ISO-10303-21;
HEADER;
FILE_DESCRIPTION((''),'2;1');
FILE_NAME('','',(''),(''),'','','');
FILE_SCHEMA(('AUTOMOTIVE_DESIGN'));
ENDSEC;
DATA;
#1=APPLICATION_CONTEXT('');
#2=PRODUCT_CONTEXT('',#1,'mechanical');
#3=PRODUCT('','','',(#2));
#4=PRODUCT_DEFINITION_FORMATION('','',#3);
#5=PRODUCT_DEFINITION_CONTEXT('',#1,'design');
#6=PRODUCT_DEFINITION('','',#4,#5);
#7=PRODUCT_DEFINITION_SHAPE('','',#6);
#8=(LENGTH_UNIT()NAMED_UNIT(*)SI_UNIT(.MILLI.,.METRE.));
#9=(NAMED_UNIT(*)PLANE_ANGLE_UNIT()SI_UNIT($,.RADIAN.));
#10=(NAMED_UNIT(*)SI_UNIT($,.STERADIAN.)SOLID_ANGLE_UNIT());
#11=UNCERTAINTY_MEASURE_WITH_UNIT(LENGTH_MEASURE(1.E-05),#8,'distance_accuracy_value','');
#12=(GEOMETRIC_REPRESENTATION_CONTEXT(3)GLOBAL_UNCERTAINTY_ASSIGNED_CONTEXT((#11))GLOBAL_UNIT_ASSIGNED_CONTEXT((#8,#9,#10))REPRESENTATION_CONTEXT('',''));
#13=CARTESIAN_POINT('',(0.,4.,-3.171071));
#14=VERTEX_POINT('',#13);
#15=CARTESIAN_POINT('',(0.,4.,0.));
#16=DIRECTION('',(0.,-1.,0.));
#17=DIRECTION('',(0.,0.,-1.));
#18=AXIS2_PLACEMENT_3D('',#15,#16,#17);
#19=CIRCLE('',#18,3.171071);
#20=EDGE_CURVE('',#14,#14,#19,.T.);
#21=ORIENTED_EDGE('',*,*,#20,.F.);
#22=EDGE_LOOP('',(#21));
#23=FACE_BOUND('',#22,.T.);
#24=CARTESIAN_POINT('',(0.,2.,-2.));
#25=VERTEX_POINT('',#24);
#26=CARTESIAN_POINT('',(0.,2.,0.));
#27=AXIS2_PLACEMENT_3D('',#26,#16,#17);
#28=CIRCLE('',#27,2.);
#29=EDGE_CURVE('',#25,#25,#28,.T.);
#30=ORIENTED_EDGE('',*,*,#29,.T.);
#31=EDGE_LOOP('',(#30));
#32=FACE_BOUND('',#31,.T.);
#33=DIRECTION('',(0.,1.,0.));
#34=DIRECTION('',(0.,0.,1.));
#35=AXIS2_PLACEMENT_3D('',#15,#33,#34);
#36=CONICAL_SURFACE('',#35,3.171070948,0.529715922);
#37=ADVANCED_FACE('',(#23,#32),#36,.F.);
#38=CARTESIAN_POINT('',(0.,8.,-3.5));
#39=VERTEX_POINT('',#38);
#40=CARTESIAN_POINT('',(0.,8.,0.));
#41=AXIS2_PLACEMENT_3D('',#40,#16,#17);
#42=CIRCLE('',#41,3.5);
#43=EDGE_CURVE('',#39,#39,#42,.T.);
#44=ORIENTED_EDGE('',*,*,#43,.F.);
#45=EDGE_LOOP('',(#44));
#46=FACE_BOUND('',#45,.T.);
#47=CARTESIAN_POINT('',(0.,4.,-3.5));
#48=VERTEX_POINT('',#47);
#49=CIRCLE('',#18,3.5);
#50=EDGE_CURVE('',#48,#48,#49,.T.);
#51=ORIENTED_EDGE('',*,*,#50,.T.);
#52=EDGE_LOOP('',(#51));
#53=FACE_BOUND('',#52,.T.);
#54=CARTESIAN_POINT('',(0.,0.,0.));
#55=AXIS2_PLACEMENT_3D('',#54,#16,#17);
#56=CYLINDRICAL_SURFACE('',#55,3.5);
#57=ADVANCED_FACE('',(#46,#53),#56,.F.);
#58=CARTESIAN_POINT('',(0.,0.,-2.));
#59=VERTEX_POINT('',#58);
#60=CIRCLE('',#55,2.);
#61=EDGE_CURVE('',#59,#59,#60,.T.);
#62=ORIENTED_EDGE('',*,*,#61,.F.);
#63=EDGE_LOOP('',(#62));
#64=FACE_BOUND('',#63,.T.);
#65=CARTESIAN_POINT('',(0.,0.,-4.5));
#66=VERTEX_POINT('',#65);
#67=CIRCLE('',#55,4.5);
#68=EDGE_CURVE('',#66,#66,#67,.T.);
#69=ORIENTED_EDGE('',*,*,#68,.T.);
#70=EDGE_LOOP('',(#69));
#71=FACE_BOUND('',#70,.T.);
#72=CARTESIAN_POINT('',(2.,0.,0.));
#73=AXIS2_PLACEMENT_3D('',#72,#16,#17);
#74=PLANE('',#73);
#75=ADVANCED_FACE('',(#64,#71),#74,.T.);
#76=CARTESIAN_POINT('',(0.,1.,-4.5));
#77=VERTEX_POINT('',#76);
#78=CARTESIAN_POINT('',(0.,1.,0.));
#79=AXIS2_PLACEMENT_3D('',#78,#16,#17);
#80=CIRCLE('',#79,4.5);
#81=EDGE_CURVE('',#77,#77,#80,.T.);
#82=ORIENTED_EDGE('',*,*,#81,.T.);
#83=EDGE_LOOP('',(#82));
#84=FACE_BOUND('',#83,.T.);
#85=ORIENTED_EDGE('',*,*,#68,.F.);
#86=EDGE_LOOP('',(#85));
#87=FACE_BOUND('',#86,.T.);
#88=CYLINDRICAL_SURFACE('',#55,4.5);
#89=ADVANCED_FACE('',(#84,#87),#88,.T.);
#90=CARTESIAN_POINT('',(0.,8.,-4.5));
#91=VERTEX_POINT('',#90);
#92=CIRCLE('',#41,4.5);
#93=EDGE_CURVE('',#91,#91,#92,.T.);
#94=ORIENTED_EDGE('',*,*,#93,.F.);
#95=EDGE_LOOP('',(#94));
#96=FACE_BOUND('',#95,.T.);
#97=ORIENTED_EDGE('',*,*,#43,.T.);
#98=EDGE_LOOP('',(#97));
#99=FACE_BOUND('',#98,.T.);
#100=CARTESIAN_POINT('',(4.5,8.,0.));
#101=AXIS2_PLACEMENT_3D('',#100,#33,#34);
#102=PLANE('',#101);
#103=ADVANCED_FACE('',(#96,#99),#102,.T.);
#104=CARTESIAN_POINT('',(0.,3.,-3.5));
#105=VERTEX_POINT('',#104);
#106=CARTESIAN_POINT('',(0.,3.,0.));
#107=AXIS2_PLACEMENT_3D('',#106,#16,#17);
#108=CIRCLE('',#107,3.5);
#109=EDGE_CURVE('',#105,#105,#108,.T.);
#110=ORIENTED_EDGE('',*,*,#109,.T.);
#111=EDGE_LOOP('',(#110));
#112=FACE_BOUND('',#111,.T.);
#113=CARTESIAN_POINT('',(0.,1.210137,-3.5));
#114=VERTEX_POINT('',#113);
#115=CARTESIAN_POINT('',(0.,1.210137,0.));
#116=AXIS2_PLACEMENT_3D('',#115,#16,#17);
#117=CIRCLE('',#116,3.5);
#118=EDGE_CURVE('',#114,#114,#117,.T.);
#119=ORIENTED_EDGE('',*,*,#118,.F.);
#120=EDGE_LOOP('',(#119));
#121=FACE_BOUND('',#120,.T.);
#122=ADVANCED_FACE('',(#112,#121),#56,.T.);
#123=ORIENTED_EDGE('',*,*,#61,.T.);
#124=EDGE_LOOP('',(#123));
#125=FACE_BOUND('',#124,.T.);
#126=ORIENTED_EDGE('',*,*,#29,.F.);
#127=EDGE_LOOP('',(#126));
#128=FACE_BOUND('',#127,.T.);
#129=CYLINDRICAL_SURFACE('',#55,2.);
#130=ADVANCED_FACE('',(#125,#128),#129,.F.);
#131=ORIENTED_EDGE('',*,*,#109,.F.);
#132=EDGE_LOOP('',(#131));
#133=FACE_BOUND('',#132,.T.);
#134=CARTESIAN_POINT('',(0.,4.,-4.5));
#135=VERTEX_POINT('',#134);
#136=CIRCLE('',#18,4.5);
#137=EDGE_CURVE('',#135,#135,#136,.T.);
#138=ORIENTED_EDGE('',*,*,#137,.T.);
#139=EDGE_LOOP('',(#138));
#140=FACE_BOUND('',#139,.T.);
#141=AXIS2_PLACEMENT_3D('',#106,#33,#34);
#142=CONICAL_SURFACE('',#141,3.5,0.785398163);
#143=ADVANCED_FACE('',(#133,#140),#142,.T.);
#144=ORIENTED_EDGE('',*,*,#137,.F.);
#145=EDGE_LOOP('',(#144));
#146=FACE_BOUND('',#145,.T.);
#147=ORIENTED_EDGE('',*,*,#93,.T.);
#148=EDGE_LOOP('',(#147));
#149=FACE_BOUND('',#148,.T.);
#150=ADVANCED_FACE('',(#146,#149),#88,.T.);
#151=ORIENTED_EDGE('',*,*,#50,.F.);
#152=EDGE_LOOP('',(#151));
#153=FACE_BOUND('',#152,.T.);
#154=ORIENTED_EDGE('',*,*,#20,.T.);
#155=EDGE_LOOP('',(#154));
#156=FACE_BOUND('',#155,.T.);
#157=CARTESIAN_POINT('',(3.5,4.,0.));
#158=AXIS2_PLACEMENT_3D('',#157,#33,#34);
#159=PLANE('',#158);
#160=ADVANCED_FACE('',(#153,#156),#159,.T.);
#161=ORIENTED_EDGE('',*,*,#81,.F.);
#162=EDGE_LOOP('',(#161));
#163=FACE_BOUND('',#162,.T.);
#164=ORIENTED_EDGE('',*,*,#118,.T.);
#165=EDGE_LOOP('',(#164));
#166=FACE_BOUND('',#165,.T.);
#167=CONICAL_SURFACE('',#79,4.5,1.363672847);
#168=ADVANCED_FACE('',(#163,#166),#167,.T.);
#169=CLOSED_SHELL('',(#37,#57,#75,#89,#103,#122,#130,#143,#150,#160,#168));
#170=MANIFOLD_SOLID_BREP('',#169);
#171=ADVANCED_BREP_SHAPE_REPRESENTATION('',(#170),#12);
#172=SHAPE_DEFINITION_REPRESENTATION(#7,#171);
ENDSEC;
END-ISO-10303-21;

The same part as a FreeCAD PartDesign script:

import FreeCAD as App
import Part
import Sketcher

V = App.Vector
Q = App.Units.Quantity


def add_polygon(sketch, points):
    """Adds a closed chain of lines whose ends are joined by coincident constraints."""
    first, n = sketch.GeometryCount, len(points)
    for a, b in zip(points, points[1:] + points[:1]):
        sketch.addGeometry(Part.LineSegment(App.Vector(*a, 0), App.Vector(*b, 0)), False)
    for i in range(n):
        sketch.addConstraint(Sketcher.Constraint("Coincident", first + i, 2, first + (i + 1) % n, 1))

doc = App.newDocument("Part")
body = doc.addObject("PartDesign::Body", "Body")

# Sketch on XY plane
sketch1 = body.newObject("Sketcher::SketchObject", "Sketch")
sketch1.AttachmentSupport = (doc.getObject("XY_Plane"), [""])
sketch1.MapMode = "FlatFace"
add_polygon(sketch1, [(2, 0), (4.5, 0), (4.5, 1), (3.5, 1.21), (3.5, 3), (4.5, 4), (4.5, 8), (3.5, 8), (3.5, 4), (3.17, 4), (2, 2)])  # lines 0-10
sketch1.addConstraint(Sketcher.Constraint("Horizontal", 0))
sketch1.addConstraint(Sketcher.Constraint("Vertical", 1))
sketch1.addConstraint(Sketcher.Constraint("Vertical", 3))
sketch1.addConstraint(Sketcher.Constraint("Vertical", 5))
sketch1.addConstraint(Sketcher.Constraint("Horizontal", 6))
sketch1.addConstraint(Sketcher.Constraint("Vertical", 7))
sketch1.addConstraint(Sketcher.Constraint("Horizontal", 8))
sketch1.addConstraint(Sketcher.Constraint("Vertical", 10))
sketch1.addConstraint(Sketcher.Constraint("PointOnObject", 0, 2, -1))
sketch1.addConstraint(Sketcher.Constraint("Horizontal", 4, 2, 7, 2))
sketch1.addConstraint(Sketcher.Constraint("Vertical", 1, 2, 4, 2))
sketch1.addConstraint(Sketcher.Constraint("Vertical", 3, 2, 6, 2))
sketch1.addConstraint(Sketcher.Constraint("Equal", 6, 1))
sketch1.addConstraint(Sketcher.Constraint("DistanceX", 6, 2, 6, 1, 1.0))
sketch1.addConstraint(Sketcher.Constraint("DistanceY", 5, 1, 5, 2, 4.0))
sketch1.addConstraint(Sketcher.Constraint("DistanceY", 10, 2, 10, 1, 2.0))
sketch1.addConstraint(Sketcher.Constraint("Angle", 4, Q("45 deg")))
sketch1.addConstraint(Sketcher.Constraint("DistanceX", 0, 1, 0, 2, 2.5))
sketch1.addConstraint(Sketcher.Constraint("DistanceY", -1, 1, 3, 2, 3.0))
sketch1.addConstraint(Sketcher.Constraint("DistanceX", -1, 1, 9, 2, 2.0))
sketch1.addConstraint(Sketcher.Constraint("DistanceX", 8, 2, 8, 1, 0.328929))
sketch1.addConstraint(Sketcher.Constraint("Distance", 2, 1.02184))
revolution = body.newObject("PartDesign::Revolution", "Revolution")
revolution.Profile = sketch1
revolution.ReferenceAxis = (sketch1, ["V_Axis"])
revolution.Angle = 360

doc.recompute()
